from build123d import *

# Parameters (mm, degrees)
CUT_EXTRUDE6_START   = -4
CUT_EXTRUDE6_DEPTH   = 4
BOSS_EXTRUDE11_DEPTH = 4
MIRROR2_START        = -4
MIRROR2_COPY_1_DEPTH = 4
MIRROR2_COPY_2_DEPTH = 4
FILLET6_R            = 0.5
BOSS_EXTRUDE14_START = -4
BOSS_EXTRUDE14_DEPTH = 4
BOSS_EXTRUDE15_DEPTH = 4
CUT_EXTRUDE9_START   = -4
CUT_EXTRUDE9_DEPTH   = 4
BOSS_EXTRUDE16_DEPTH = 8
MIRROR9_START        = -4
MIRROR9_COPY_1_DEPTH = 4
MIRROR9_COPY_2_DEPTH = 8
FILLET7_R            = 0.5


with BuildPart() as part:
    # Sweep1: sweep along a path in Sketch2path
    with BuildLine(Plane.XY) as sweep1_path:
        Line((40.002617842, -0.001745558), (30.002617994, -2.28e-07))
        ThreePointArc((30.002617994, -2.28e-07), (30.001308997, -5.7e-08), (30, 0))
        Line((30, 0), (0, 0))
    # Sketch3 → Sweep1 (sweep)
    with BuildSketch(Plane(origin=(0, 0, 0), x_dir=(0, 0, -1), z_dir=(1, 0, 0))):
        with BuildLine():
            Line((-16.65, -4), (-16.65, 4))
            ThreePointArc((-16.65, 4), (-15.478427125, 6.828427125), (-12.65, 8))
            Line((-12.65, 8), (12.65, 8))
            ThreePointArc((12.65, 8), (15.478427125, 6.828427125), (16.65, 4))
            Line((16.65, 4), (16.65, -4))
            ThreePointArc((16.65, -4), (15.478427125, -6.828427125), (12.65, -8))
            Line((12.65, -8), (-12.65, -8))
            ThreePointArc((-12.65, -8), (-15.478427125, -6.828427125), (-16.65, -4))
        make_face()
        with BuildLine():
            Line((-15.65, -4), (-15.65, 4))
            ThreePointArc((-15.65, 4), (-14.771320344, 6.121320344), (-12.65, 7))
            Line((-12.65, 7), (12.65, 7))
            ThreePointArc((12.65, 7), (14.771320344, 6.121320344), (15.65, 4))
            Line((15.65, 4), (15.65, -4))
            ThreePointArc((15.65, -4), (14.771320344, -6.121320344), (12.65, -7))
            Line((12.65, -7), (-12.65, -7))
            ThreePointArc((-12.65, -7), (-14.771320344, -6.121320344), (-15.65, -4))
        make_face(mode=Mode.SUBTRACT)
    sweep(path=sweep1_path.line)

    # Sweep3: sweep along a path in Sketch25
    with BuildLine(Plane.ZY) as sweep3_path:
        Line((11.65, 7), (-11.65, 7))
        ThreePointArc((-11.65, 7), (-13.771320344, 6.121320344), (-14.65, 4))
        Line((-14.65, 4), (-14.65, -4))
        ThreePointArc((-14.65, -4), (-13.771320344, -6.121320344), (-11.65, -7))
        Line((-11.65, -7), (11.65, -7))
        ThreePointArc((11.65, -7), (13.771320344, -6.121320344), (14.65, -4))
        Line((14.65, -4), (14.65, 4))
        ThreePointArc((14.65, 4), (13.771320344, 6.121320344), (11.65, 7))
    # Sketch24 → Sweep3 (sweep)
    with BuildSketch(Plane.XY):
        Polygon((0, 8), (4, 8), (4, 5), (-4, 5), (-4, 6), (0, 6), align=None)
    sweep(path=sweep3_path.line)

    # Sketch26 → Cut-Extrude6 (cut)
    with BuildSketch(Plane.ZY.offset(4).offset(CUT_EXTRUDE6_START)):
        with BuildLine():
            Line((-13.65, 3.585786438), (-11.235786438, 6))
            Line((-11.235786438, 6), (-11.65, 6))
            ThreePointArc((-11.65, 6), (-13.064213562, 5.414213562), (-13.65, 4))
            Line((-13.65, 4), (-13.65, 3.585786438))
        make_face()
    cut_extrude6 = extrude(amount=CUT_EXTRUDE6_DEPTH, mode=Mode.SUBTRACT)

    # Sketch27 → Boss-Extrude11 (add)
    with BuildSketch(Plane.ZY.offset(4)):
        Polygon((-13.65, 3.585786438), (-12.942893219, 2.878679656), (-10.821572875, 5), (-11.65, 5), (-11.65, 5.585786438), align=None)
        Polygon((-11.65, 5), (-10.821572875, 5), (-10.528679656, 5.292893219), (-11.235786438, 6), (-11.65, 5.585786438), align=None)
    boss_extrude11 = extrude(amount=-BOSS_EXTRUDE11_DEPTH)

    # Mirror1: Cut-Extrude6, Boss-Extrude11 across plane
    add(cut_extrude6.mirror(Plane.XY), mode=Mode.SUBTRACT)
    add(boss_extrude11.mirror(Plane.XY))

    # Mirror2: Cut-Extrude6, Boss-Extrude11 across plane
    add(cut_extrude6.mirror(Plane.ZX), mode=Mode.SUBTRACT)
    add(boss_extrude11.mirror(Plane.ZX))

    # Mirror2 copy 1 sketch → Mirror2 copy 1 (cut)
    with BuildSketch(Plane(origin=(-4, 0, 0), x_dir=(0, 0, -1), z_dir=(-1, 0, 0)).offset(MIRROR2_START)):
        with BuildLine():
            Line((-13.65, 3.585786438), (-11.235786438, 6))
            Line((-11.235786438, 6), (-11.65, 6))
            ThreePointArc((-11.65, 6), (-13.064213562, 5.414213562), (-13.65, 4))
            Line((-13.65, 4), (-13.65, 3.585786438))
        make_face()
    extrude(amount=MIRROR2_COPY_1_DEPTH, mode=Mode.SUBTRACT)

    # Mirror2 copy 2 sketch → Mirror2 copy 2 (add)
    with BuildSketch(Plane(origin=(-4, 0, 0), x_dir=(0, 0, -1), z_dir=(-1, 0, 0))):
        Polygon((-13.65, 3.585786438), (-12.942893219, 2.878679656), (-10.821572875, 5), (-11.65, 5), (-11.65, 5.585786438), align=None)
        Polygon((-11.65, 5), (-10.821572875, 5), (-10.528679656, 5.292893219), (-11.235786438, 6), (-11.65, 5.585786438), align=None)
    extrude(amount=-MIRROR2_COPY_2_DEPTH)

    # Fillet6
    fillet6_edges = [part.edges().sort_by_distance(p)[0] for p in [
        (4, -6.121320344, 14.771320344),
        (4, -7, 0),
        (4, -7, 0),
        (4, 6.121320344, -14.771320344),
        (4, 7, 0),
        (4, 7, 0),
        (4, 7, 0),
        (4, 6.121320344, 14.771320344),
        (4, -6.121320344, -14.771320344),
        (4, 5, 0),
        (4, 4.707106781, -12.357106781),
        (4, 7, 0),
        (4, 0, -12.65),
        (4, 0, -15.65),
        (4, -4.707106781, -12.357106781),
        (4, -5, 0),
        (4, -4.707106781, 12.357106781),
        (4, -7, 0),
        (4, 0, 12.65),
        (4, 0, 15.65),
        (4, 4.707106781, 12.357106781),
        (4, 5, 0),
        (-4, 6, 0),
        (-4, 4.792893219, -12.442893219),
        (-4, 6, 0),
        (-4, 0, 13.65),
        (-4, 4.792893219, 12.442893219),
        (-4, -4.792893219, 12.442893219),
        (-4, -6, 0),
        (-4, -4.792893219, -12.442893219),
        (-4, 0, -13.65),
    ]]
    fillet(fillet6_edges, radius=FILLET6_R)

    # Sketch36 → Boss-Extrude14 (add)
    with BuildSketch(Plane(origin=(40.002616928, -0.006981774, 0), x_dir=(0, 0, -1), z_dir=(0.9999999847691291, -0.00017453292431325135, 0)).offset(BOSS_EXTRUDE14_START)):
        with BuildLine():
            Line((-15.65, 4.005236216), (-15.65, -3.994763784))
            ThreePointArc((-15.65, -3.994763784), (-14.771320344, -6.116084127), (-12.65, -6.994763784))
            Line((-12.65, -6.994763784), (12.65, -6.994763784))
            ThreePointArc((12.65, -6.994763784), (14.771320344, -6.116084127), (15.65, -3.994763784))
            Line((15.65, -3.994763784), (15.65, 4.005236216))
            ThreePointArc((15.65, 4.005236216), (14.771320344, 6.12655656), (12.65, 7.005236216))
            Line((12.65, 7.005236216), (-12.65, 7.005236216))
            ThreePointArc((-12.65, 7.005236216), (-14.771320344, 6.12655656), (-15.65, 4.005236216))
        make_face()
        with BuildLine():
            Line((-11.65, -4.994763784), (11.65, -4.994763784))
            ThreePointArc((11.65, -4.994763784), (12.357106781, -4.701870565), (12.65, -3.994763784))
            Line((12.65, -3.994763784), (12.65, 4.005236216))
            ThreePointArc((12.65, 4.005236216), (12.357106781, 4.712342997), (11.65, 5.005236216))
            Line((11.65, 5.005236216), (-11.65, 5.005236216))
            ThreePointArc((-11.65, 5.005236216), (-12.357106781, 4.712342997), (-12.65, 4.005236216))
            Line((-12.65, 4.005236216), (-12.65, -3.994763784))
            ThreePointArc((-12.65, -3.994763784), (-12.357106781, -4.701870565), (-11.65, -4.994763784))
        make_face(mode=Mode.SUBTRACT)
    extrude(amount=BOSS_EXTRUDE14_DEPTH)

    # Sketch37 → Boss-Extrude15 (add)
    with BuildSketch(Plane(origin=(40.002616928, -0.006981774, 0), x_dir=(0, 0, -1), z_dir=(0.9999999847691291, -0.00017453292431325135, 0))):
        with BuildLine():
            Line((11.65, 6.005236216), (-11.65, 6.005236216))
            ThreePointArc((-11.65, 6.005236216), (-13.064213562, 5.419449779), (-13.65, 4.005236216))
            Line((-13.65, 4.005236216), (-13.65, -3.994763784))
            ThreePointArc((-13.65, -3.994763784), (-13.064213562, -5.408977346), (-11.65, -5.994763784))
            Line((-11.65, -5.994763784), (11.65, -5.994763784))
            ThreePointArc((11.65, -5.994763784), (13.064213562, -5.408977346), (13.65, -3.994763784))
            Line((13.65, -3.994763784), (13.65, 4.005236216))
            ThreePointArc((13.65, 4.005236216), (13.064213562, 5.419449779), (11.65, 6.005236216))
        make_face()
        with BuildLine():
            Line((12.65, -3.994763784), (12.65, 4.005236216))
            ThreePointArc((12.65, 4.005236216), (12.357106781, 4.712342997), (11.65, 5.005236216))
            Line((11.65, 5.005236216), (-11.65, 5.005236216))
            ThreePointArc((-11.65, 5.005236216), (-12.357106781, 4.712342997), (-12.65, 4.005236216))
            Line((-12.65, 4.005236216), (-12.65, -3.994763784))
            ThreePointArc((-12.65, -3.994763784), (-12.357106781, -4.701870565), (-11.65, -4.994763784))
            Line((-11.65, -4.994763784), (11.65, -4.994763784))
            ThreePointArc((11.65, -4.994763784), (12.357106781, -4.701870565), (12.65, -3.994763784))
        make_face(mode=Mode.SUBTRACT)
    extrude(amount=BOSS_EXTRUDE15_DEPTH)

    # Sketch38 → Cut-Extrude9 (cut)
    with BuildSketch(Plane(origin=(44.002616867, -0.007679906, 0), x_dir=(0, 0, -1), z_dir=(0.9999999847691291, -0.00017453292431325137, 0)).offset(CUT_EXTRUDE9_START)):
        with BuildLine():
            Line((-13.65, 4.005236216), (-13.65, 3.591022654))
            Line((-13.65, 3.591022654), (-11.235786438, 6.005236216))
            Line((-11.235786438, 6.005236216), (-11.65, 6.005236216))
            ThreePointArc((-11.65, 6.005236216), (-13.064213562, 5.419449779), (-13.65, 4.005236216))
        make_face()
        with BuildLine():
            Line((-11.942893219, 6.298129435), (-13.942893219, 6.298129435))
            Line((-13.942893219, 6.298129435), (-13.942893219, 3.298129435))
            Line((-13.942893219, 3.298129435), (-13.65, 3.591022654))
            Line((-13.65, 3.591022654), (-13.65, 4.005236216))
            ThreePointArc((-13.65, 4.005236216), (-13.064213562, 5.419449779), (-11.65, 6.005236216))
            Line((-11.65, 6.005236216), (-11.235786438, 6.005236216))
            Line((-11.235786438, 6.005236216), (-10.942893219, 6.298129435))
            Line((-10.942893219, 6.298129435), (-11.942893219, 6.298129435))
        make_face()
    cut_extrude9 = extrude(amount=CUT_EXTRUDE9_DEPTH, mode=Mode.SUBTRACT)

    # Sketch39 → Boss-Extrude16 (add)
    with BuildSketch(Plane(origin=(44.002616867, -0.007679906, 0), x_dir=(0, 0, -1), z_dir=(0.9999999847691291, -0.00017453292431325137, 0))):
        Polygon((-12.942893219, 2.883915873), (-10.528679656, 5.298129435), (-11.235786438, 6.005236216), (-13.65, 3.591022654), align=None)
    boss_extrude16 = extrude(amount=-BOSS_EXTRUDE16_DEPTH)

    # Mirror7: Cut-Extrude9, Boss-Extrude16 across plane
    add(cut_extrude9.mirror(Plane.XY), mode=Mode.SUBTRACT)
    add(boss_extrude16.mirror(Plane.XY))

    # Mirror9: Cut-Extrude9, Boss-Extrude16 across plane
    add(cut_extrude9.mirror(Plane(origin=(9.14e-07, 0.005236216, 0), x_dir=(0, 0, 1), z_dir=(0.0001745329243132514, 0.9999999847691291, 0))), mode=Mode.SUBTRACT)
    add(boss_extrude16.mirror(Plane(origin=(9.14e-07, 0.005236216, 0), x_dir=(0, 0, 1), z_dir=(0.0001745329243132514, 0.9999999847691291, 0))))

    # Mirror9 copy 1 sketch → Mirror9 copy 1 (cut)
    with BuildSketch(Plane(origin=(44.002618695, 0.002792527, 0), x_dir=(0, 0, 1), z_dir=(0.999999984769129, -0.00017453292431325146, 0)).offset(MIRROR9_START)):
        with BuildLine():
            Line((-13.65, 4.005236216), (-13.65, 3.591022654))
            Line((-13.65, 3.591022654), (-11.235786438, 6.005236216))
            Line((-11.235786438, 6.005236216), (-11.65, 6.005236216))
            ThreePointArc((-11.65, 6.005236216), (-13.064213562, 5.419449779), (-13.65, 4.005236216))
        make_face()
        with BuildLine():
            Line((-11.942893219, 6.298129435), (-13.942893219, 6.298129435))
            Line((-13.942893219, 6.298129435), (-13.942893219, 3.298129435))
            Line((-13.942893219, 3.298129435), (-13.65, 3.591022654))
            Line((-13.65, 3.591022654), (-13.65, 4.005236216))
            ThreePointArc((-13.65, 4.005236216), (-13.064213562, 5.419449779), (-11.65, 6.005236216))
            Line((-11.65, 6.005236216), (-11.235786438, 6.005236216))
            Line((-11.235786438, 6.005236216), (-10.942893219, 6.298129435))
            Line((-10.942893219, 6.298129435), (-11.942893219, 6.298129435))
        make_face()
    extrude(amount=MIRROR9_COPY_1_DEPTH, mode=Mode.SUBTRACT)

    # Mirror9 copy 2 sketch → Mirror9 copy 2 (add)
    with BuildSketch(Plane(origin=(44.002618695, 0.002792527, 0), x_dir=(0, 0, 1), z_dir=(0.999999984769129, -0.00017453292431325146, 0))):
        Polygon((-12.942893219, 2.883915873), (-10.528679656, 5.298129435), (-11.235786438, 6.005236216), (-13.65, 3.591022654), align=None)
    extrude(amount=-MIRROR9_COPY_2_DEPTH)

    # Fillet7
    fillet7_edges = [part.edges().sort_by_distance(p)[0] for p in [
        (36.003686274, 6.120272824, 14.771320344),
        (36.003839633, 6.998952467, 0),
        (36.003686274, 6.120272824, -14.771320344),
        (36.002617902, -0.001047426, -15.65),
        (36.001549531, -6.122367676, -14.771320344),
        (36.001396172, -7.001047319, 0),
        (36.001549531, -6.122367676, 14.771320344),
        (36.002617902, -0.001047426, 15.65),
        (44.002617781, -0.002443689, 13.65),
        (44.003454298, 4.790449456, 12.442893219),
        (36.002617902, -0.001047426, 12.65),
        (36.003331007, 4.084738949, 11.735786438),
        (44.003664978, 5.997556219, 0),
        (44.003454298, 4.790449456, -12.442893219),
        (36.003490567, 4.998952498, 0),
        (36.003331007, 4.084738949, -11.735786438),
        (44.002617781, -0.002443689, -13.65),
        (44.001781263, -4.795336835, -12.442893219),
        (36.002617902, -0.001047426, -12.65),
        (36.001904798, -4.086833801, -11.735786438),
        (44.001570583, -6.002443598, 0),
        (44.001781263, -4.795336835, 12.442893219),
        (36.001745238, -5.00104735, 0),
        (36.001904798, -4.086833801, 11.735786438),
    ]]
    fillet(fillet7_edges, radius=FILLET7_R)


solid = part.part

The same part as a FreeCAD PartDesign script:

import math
import FreeCAD as App
import Part
import Sketcher

V = App.Vector
Q = App.Units.Quantity


def edges_at(feature, points):
    """Names of the edges that pass closest to the given points."""
    edges = feature.Shape.Edges
    near = lambda p: min(range(len(edges)), key=lambda i: edges[i].distToShape(Part.Vertex(*p))[0])
    return sorted({f"Edge{near(p) + 1}" for p in points})

doc = App.newDocument("Part")
body = doc.addObject("PartDesign::Body", "Body")

# Sketch on YZ plane
sketch1 = doc.addObject("Sketcher::SketchObject", "Sketch")
body.addObject(sketch1)
sketch1.AttachmentSupport = (doc.YZ_Plane, [""])
sketch1.MapMode = "FlatFace"
sketch1.addGeometry(Part.LineSegment(V(4, 16.6, 0), V(-4, 16.6, 0)), False)
sketch1.addGeometry(Part.ArcOfCircle(Part.Circle(V(-4, 12.7, 0), V(0, 0, 1), 4), math.radians(90), math.radians(180)), False)
sketch1.addGeometry(Part.LineSegment(V(-8, 12.7, 0), V(-8, -12.7, 0)), False)
sketch1.addGeometry(Part.ArcOfCircle(Part.Circle(V(-4, -12.7, 0), V(0, 0, 1), 4), math.radians(180), math.radians(270)), False)
sketch1.addGeometry(Part.LineSegment(V(-4, -16.6, 0), V(4, -16.6, 0)), False)
sketch1.addGeometry(Part.ArcOfCircle(Part.Circle(V(4, -12.7, 0), V(0, 0, 1), 4), math.radians(-90), math.radians(0)), False)
sketch1.addGeometry(Part.LineSegment(V(8, -12.7, 0), V(8, 12.7, 0)), False)
sketch1.addGeometry(Part.ArcOfCircle(Part.Circle(V(4, 12.7, 0), V(0, 0, 1), 4), math.radians(0), math.radians(90)), False)
sketch1.addGeometry(Part.LineSegment(V(-4, 15.7, 0), V(4, 15.7, 0)), False)
sketch1.addGeometry(Part.ArcOfCircle(Part.Circle(V(4, 12.7, 0), V(0, 0, 1), 3), math.radians(0), math.radians(90)), False)
sketch1.addGeometry(Part.LineSegment(V(7, 12.7, 0), V(7, -12.7, 0)), False)
sketch1.addGeometry(Part.ArcOfCircle(Part.Circle(V(4, -12.7, 0), V(0, 0, 1), 3), math.radians(-90), math.radians(0)), False)
sketch1.addGeometry(Part.LineSegment(V(4, -15.7, 0), V(-4, -15.7, 0)), False)
sketch1.addGeometry(Part.ArcOfCircle(Part.Circle(V(-4, -12.7, 0), V(0, 0, 1), 3), math.radians(180), math.radians(270)), False)
sketch1.addGeometry(Part.LineSegment(V(-7, -12.7, 0), V(-7, 12.7, 0)), False)
sketch1.addGeometry(Part.ArcOfCircle(Part.Circle(V(-4, 12.7, 0), V(0, 0, 1), 3), math.radians(90), math.radians(180)), False)
sketch1.addConstraint(Sketcher.Constraint("Tangent", 0, 2, 1, 1))
sketch1.addConstraint(Sketcher.Constraint("Tangent", 1, 2, 2, 1))
sketch1.addConstraint(Sketcher.Constraint("Tangent", 2, 2, 3, 1))
sketch1.addConstraint(Sketcher.Constraint("Tangent", 3, 2, 4, 1))
sketch1.addConstraint(Sketcher.Constraint("Tangent", 4, 2, 5, 1))
sketch1.addConstraint(Sketcher.Constraint("Tangent", 5, 2, 6, 1))
sketch1.addConstraint(Sketcher.Constraint("Tangent", 6, 2, 7, 1))
sketch1.addConstraint(Sketcher.Constraint("Tangent", 7, 2, 0, 1))
sketch1.addConstraint(Sketcher.Constraint("Tangent", 8, 2, 9, 2))
sketch1.addConstraint(Sketcher.Constraint("Tangent", 9, 1, 10, 1))
sketch1.addConstraint(Sketcher.Constraint("Tangent", 10, 2, 11, 2))
sketch1.addConstraint(Sketcher.Constraint("Tangent", 11, 1, 12, 1))
sketch1.addConstraint(Sketcher.Constraint("Tangent", 12, 2, 13, 2))
sketch1.addConstraint(Sketcher.Constraint("Tangent", 13, 1, 14, 1))
sketch1.addConstraint(Sketcher.Constraint("Tangent", 14, 2, 15, 2))
sketch1.addConstraint(Sketcher.Constraint("Tangent", 15, 1, 8, 1))
sketch1.addConstraint(Sketcher.Constraint("Horizontal", 0))
sketch1.addConstraint(Sketcher.Constraint("Vertical", 2))
sketch1.addConstraint(Sketcher.Constraint("Horizontal", 4))
sketch1.addConstraint(Sketcher.Constraint("Vertical", 6))
sketch1.addConstraint(Sketcher.Constraint("Horizontal", 8))
sketch1.addConstraint(Sketcher.Constraint("Vertical", 10))
sketch1.addConstraint(Sketcher.Constraint("Horizontal", 12))
sketch1.addConstraint(Sketcher.Constraint("Vertical", 14))
sketch1.addConstraint(Sketcher.Constraint("Coincident", 9, 3, 7, 3))
sketch1.addConstraint(Sketcher.Constraint("Coincident", 11, 3, 5, 3))
sketch1.addConstraint(Sketcher.Constraint("Coincident", 13, 3, 3, 3))
sketch1.addConstraint(Sketcher.Constraint("Equal", 1, 3))
sketch1.addConstraint(Sketcher.Constraint("Equal", 3, 5))
sketch1.addConstraint(Sketcher.Constraint("Equal", 5, 7))
sketch1.addConstraint(Sketcher.Constraint("Equal", 13, 15))
sketch1.addConstraint(Sketcher.Constraint("Symmetric", 1, 3, 5, 3, -1, 1))
sketch1.addConstraint(Sketcher.Constraint("Radius", 1, 4.0))
sketch1.addConstraint(Sketcher.Constraint("Radius", 9, 3.0))
sketch1.addConstraint(Sketcher.Constraint("DistanceX", 0, 2, 0, 1, 8.0))
sketch1.addConstraint(Sketcher.Constraint("DistanceY", 2, 2, 2, 1, 25.3))

# Sketch on XY plane
sketch2 = doc.addObject("Sketcher::SketchObject", "Sketch001")
body.addObject(sketch2)
sketch2.AttachmentSupport = (doc.XY_Plane, [""])
sketch2.MapMode = "FlatFace"
sketch2.addGeometry(Part.LineSegment(V(40.0026, -0.0017, 0), V(30.0026, 0, 0)), False)
sketch2.addGeometry(Part.ArcOfCircle(Part.Circle(V(30, -15.0305, 0), V(0, 0, 1), 15.0305), math.radians(89.99), math.radians(90)), False)
sketch2.addGeometry(Part.LineSegment(V(30, 0, 0), V(0, 0, 0)), False)
sketch2.addConstraint(Sketcher.Constraint("Tangent", 0, 2, 1, 1))
sketch2.addConstraint(Sketcher.Constraint("Tangent", 1, 2, 2, 1))
sketch2.addConstraint(Sketcher.Constraint("Horizontal", 2))
sketch2.addConstraint(Sketcher.Constraint("Coincident", 2, 2, -1, 1))
sketch2.addConstraint(Sketcher.Constraint("DistanceX", 2, 2, 2, 1, 30.0))
sketch2.addConstraint(Sketcher.Constraint("Distance", 0, 10.0))
sketch2.addConstraint(Sketcher.Constraint("Angle", 0, Q("179.99 deg")))
sketch2.addConstraint(Sketcher.Constraint("Radius", 1, 15.030466))
doc.recompute()

additivepipe = doc.addObject("PartDesign::AdditivePipe", "AdditivePipe")
body.addObject(additivepipe)
additivepipe.Profile = sketch1
additivepipe.Spine = (sketch2, ["Edge1", "Edge2", "Edge3"])

# Sketch on XY plane
sketch3 = doc.addObject("Sketcher::SketchObject", "Sketch002")
body.addObject(sketch3)
sketch3.AttachmentSupport = (doc.XY_Plane, [""])
sketch3.MapMode = "FlatFace"
sketch3.addGeometry(Part.LineSegment(V(4, 8, 0), V(0, 8, 0)), False)
sketch3.addGeometry(Part.LineSegment(V(0, 8, 0), V(0, 6, 0)), False)
sketch3.addGeometry(Part.LineSegment(V(0, 6, 0), V(-4, 6, 0)), False)
sketch3.addGeometry(Part.LineSegment(V(-4, 6, 0), V(-4, 5, 0)), False)
sketch3.addGeometry(Part.LineSegment(V(-4, 5, 0), V(4, 5, 0)), False)
sketch3.addGeometry(Part.LineSegment(V(4, 5, 0), V(4, 8, 0)), False)
sketch3.addConstraint(Sketcher.Constraint("Coincident", 0, 2, 1, 1))
sketch3.addConstraint(Sketcher.Constraint("Coincident", 1, 2, 2, 1))
sketch3.addConstraint(Sketcher.Constraint("Coincident", 2, 2, 3, 1))
sketch3.addConstraint(Sketcher.Constraint("Coincident", 3, 2, 4, 1))
sketch3.addConstraint(Sketcher.Constraint("Coincident", 4, 2, 5, 1))
sketch3.addConstraint(Sketcher.Constraint("Coincident", 5, 2, 0, 1))
sketch3.addConstraint(Sketcher.Constraint("Horizontal", 0))
sketch3.addConstraint(Sketcher.Constraint("Vertical", 1))
sketch3.addConstraint(Sketcher.Constraint("Horizontal", 2))
sketch3.addConstraint(Sketcher.Constraint("Vertical", 3))
sketch3.addConstraint(Sketcher.Constraint("Horizontal", 4))
sketch3.addConstraint(Sketcher.Constraint("Vertical", 5))
sketch3.addConstraint(Sketcher.Constraint("PointOnObject", 0, 2, -2))
sketch3.addConstraint(Sketcher.Constraint("Equal", 0, 2))
sketch3.addConstraint(Sketcher.Constraint("DistanceX", 0, 2, 0, 1, 4.0))
sketch3.addConstraint(Sketcher.Constraint("DistanceY", 1, 2, 1, 1, 2.0))
sketch3.addConstraint(Sketcher.Constraint("DistanceY", 3, 2, 3, 1, 1.0))
sketch3.addConstraint(Sketcher.Constraint("DistanceY", -1, 1, 0, 2, 8.0))

# Sketch on YZ plane
sketch4 = doc.addObject("Sketcher::SketchObject", "Sketch003")
body.addObject(sketch4)
sketch4.AttachmentSupport = (doc.YZ_Plane, [""])
sketch4.MapMode = "FlatFace"
sketch4.addGeometry(Part.LineSegment(V(7, 11.7, 0), V(7, -11.7, 0)), False)
sketch4.addGeometry(Part.ArcOfCircle(Part.Circle(V(4, -11.7, 0), V(0, 0, 1), 3), math.radians(-90), math.radians(0)), False)
sketch4.addGeometry(Part.LineSegment(V(4, -14.7, 0), V(-4, -14.7, 0)), False)
sketch4.addGeometry(Part.ArcOfCircle(Part.Circle(V(-4, -11.7, 0), V(0, 0, 1), 3), math.radians(180), math.radians(270)), False)
sketch4.addGeometry(Part.LineSegment(V(-7, -11.7, 0), V(-7, 11.7, 0)), False)
sketch4.addGeometry(Part.ArcOfCircle(Part.Circle(V(-4, 11.7, 0), V(0, 0, 1), 3), math.radians(90), math.radians(180)), False)
sketch4.addGeometry(Part.LineSegment(V(-4, 14.7, 0), V(4, 14.7, 0)), False)
sketch4.addGeometry(Part.ArcOfCircle(Part.Circle(V(4, 11.7, 0), V(0, 0, 1), 3), math.radians(0), math.radians(90)), False)
sketch4.addConstraint(Sketcher.Constraint("Tangent", 0, 2, 1, 2))
sketch4.addConstraint(Sketcher.Constraint("Tangent", 1, 1, 2, 1))
sketch4.addConstraint(Sketcher.Constraint("Tangent", 2, 2, 3, 2))
sketch4.addConstraint(Sketcher.Constraint("Tangent", 3, 1, 4, 1))
sketch4.addConstraint(Sketcher.Constraint("Tangent", 4, 2, 5, 2))
sketch4.addConstraint(Sketcher.Constraint("Tangent", 5, 1, 6, 1))
sketch4.addConstraint(Sketcher.Constraint("Tangent", 6, 2, 7, 2))
sketch4.addConstraint(Sketcher.Constraint("Tangent", 7, 1, 0, 1))
sketch4.addConstraint(Sketcher.Constraint("Vertical", 0))
sketch4.addConstraint(Sketcher.Constraint("Horizontal", 2))
sketch4.addConstraint(Sketcher.Constraint("Vertical", 4))
sketch4.addConstraint(Sketcher.Constraint("Horizontal", 6))
sketch4.addConstraint(Sketcher.Constraint("Equal", 1, 3))
sketch4.addConstraint(Sketcher.Constraint("Equal", 3, 5))
sketch4.addConstraint(Sketcher.Constraint("Equal", 5, 7))
sketch4.addConstraint(Sketcher.Constraint("Symmetric", 1, 3, 5, 3, -1, 1))
sketch4.addConstraint(Sketcher.Constraint("Radius", 1, 3.0))
sketch4.addConstraint(Sketcher.Constraint("DistanceX", 2, 2, 2, 1, 8.0))
sketch4.addConstraint(Sketcher.Constraint("DistanceY", 0, 2, 0, 1, 23.3))
doc.recompute()

additivepipe2 = doc.addObject("PartDesign::AdditivePipe", "AdditivePipe001")
body.addObject(additivepipe2)
additivepipe2.Profile = sketch3
additivepipe2.Spine = (sketch4, ["Edge1", "Edge2", "Edge3", "Edge4", "Edge5", "Edge6", "Edge7", "Edge8"])

# Sketch on YZ plane
sketch5 = doc.addObject("Sketcher::SketchObject", "Sketch004")
body.addObject(sketch5)
sketch5.AttachmentSupport = (doc.YZ_Plane, [""])
sketch5.MapMode = "FlatFace"
sketch5.addGeometry(Part.LineSegment(V(3.59, -13.65, 0), V(6, -11.24, 0)), False)
sketch5.addGeometry(Part.LineSegment(V(6, -11.24, 0), V(6, -11.65, 0)), False)
sketch5.addGeometry(Part.ArcOfCircle(Part.Circle(V(4, -11.65, 0), V(0, 0, 1), 2), math.radians(-90), math.radians(0)), False)
sketch5.addGeometry(Part.LineSegment(V(4, -13.65, 0), V(3.59, -13.65, 0)), False)
sketch5.addConstraint(Sketcher.Constraint("Coincident", 0, 2, 1, 1))
sketch5.addConstraint(Sketcher.Constraint("Tangent", 1, 2, 2, 2))
sketch5.addConstraint(Sketcher.Constraint("Tangent", 2, 1, 3, 1))
sketch5.addConstraint(Sketcher.Constraint("Coincident", 3, 2, 0, 1))
sketch5.addConstraint(Sketcher.Constraint("Vertical", 1))
sketch5.addConstraint(Sketcher.Constraint("Horizontal", 3))
sketch5.addConstraint(Sketcher.Constraint("Equal", 3, 1))
sketch5.addConstraint(Sketcher.Constraint("Radius", 2, 2.0))
sketch5.addConstraint(Sketcher.Constraint("DistanceX", -1, 1, 2, 3, 4.0))
sketch5.addConstraint(Sketcher.Constraint("DistanceY", 2, 3, -1, 1, 11.65))
sketch5.addConstraint(Sketcher.Constraint("DistanceX", 3, 2, 3, 1, 0.414214))
pocket1 = doc.addObject("PartDesign::Pocket", "Pocket")
body.addObject(pocket1)
pocket1.Profile = sketch5
pocket1.Length = 4

# Sketch on YZ plane
sketch6 = doc.addObject("Sketcher::SketchObject", "Sketch005")
body.addObject(sketch6)
sketch6.AttachmentSupport = (doc.YZ_Plane, [""])
sketch6.MapMode = "FlatFace"
sketch6.AttachmentOffset = App.Placement(V(0, 0, -4), App.Rotation())
sketch6.addGeometry(Part.LineSegment(V(3.6, -13.7, 0), V(2.9, -12.9, 0)), False)
sketch6.addGeometry(Part.LineSegment(V(2.9, -12.9, 0), V(5.3, -10.5, 0)), False)
sketch6.addGeometry(Part.LineSegment(V(5.3, -10.5, 0), V(6, -11.2, 0)), False)
sketch6.addGeometry(Part.LineSegment(V(6, -11.2, 0), V(3.6, -13.7, 0)), False)
sketch6.addConstraint(Sketcher.Constraint("Coincident", 0, 2, 1, 1))
sketch6.addConstraint(Sketcher.Constraint("Coincident", 1, 2, 2, 1))
sketch6.addConstraint(Sketcher.Constraint("Coincident", 2, 2, 3, 1))
sketch6.addConstraint(Sketcher.Constraint("Coincident", 3, 2, 0, 1))
sketch6.addConstraint(Sketcher.Constraint("Perpendicular", 0, 1))
sketch6.addConstraint(Sketcher.Constraint("Perpendicular", 1, 2))
sketch6.addConstraint(Sketcher.Constraint("Perpendicular", 2, 3))
sketch6.addConstraint(Sketcher.Constraint("Angle", 0, Q("135 deg")))
sketch6.addConstraint(Sketcher.Constraint("Distance", 0, 1.0))
sketch6.addConstraint(Sketcher.Constraint("DistanceX", -1, 1, 2, 2, 6.0))
sketch6.addConstraint(Sketcher.Constraint("DistanceY", 3, 2, -1, 1, 13.65))
sketch6.addConstraint(Sketcher.Constraint("DistanceX", -1, 1, 0, 2, 2.87868))
pad1 = doc.addObject("PartDesign::Pad", "Pad")
body.addObject(pad1)
pad1.Profile = sketch6
pad1.Length = 4
doc.recompute()

mirrored = doc.addObject("PartDesign::Mirrored", "Mirrored")
body.addObject(mirrored)
mirrored.Originals = [pocket1, pad1]
mirrored.MirrorPlane = (doc.XY_Plane, [""])
body.Tip = mirrored
doc.recompute()

mirrored2 = doc.addObject("PartDesign::Mirrored", "Mirrored001")
body.addObject(mirrored2)
mirrored2.Originals = [pocket1, pad1]
mirrored2.MirrorPlane = (doc.XZ_Plane, [""])
body.Tip = mirrored2

# Sketch on YZ plane
sketch7 = doc.addObject("Sketcher::SketchObject", "Sketch006")
body.addObject(sketch7)
sketch7.AttachmentSupport = (doc.YZ_Plane, [""])
sketch7.MapMode = "FlatFace"
sketch7.addGeometry(Part.LineSegment(V(-3.59, 13.65, 0), V(-6, 11.24, 0)), False)
sketch7.addGeometry(Part.LineSegment(V(-6, 11.24, 0), V(-6, 11.65, 0)), False)
sketch7.addGeometry(Part.ArcOfCircle(Part.Circle(V(-4, 11.65, 0), V(0, 0, 1), 2), math.radians(90), math.radians(180)), False)
sketch7.addGeometry(Part.LineSegment(V(-4, 13.65, 0), V(-3.59, 13.65, 0)), False)
sketch7.addConstraint(Sketcher.Constraint("Coincident", 0, 2, 1, 1))
sketch7.addConstraint(Sketcher.Constraint("Tangent", 1, 2, 2, 2))
sketch7.addConstraint(Sketcher.Constraint("Tangent", 2, 1, 3, 1))
sketch7.addConstraint(Sketcher.Constraint("Coincident", 3, 2, 0, 1))
sketch7.addConstraint(Sketcher.Constraint("Vertical", 1))
sketch7.addConstraint(Sketcher.Constraint("Horizontal", 3))
sketch7.addConstraint(Sketcher.Constraint("Equal", 3, 1))
sketch7.addConstraint(Sketcher.Constraint("Radius", 2, 2.0))
sketch7.addConstraint(Sketcher.Constraint("DistanceX", 2, 3, -1, 1, 4.0))
sketch7.addConstraint(Sketcher.Constraint("DistanceY", -1, 1, 2, 3, 11.65))
sketch7.addConstraint(Sketcher.Constraint("DistanceX", 3, 1, 3, 2, 0.414214))
pocket2 = doc.addObject("PartDesign::Pocket", "Pocket001")
body.addObject(pocket2)
pocket2.Profile = sketch7
pocket2.Length = 4

# Sketch on YZ plane
sketch8 = doc.addObject("Sketcher::SketchObject", "Sketch007")
body.addObject(sketch8)
sketch8.AttachmentSupport = (doc.YZ_Plane, [""])
sketch8.MapMode = "FlatFace"
sketch8.AttachmentOffset = App.Placement(V(0, 0, -4), App.Rotation())
sketch8.addGeometry(Part.LineSegment(V(-3.6, 13.7, 0), V(-2.9, 12.9, 0)), False)
sketch8.addGeometry(Part.LineSegment(V(-2.9, 12.9, 0), V(-5.3, 10.5, 0)), False)
sketch8.addGeometry(Part.LineSegment(V(-5.3, 10.5, 0), V(-6, 11.2, 0)), False)
sketch8.addGeometry(Part.LineSegment(V(-6, 11.2, 0), V(-3.6, 13.7, 0)), False)
sketch8.addConstraint(Sketcher.Constraint("Coincident", 0, 2, 1, 1))
sketch8.addConstraint(Sketcher.Constraint("Coincident", 1, 2, 2, 1))
sketch8.addConstraint(Sketcher.Constraint("Coincident", 2, 2, 3, 1))
sketch8.addConstraint(Sketcher.Constraint("Coincident", 3, 2, 0, 1))
sketch8.addConstraint(Sketcher.Constraint("Perpendicular", 0, 1))
sketch8.addConstraint(Sketcher.Constraint("Perpendicular", 1, 2))
sketch8.addConstraint(Sketcher.Constraint("Perpendicular", 2, 3))
sketch8.addConstraint(Sketcher.Constraint("Angle", 0, Q("-45 deg")))
sketch8.addConstraint(Sketcher.Constraint("Distance", 0, 1.0))
sketch8.addConstraint(Sketcher.Constraint("DistanceX", 2, 2, -1, 1, 6.0))
sketch8.addConstraint(Sketcher.Constraint("DistanceY", -1, 1, 3, 2, 13.65))
sketch8.addConstraint(Sketcher.Constraint("DistanceX", 0, 2, -1, 1, 2.87868))
pad2 = doc.addObject("PartDesign::Pad", "Pad001")
body.addObject(pad2)
pad2.Profile = sketch8
pad2.Length = 4
doc.recompute()

fillet = doc.addObject("PartDesign::Fillet", "Fillet")
body.addObject(fillet)
fillet.Base = (pad2, edges_at(pad2, [
    (4, -6.121, 14.771),
    (4, -7, 0),
    (4, -7, 0),
    (4, 6.121, -14.771),
    (4, 7, 0),
    (4, 7, 0),
    (4, 7, 0),
    (4, 6.121, 14.771),
    (4, -6.121, -14.771),
    (4, 5, 0),
    (4, 4.707, -12.357),
    (4, 7, 0),
    (4, 0, -12.65),
    (4, 0, -15.65),
    (4, -4.707, -12.357),
    (4, -5, 0),
    (4, -4.707, 12.357),
    (4, -7, 0),
    (4, 0, 12.65),
    (4, 0, 15.65),
    (4, 4.707, 12.357),
    (4, 5, 0),
    (-4, 6, 0),
    (-4, 4.793, -12.443),
    (-4, 6, 0),
    (-4, 0, 13.65),
    (-4, 4.793, 12.443),
    (-4, -4.793, 12.443),
    (-4, -6, 0),
    (-4, -4.793, -12.443),
    (-4, 0, -13.65),
]))
fillet.Radius = 0.5

# Sketch on an angled plane
sketch9 = doc.addObject("Sketcher::SketchObject", "Sketch008")
body.addObject(sketch9)
sketch9.Placement = App.Placement(V(36.002617, -0.006284, 0), App.Rotation(V(0, 0, -1), V(0.000174533, 0.999999985, 0), V(0.999999985, -0.000174533, 0), "ZXY"))
sketch9.addGeometry(Part.LineSegment(V(-15.7, 4, 0), V(-15.7, -4, 0)), False)
sketch9.addGeometry(Part.ArcOfCircle(Part.Circle(V(-12.7, -4, 0), V(0, 0, 1), 3), math.radians(180), math.radians(270)), False)
sketch9.addGeometry(Part.LineSegment(V(-12.7, -7, 0), V(12.7, -7, 0)), False)
sketch9.addGeometry(Part.ArcOfCircle(Part.Circle(V(12.7, -4, 0), V(0, 0, 1), 3), math.radians(-90), math.radians(0)), False)
sketch9.addGeometry(Part.LineSegment(V(15.7, -4, 0), V(15.7, 4, 0)), False)
sketch9.addGeometry(Part.ArcOfCircle(Part.Circle(V(12.7, 4, 0), V(0, 0, 1), 3), math.radians(0), math.radians(90)), False)
sketch9.addGeometry(Part.LineSegment(V(12.7, 7, 0), V(-12.7, 7, 0)), False)
sketch9.addGeometry(Part.ArcOfCircle(Part.Circle(V(-12.7, 4, 0), V(0, 0, 1), 3), math.radians(90), math.radians(180)), False)
sketch9.addGeometry(Part.LineSegment(V(11.7, -5, 0), V(-11.7, -5, 0)), False)
sketch9.addGeometry(Part.ArcOfCircle(Part.Circle(V(-11.6, -4, 0), V(0, 0, 1), 1), math.radians(-180), math.radians(-90)), False)
sketch9.addGeometry(Part.LineSegment(V(-12.7, -4, 0), V(-12.7, 4, 0)), False)
sketch9.addGeometry(Part.ArcOfCircle(Part.Circle(V(-11.6, 4, 0), V(0, 0, 1), 1), math.radians(90), math.radians(180)), False)
sketch9.addGeometry(Part.LineSegment(V(-11.7, 5, 0), V(11.7, 5, 0)), False)
sketch9.addGeometry(Part.ArcOfCircle(Part.Circle(V(11.6, 4, 0), V(0, 0, 1), 1), math.radians(0), math.radians(90)), False)
sketch9.addGeometry(Part.LineSegment(V(12.7, 4, 0), V(12.7, -4, 0)), False)
sketch9.addGeometry(Part.ArcOfCircle(Part.Circle(V(11.6, -4, 0), V(0, 0, 1), 1), math.radians(-90), math.radians(0)), False)
sketch9.addConstraint(Sketcher.Constraint("Tangent", 0, 2, 1, 1))
sketch9.addConstraint(Sketcher.Constraint("Tangent", 1, 2, 2, 1))
sketch9.addConstraint(Sketcher.Constraint("Tangent", 2, 2, 3, 1))
sketch9.addConstraint(Sketcher.Constraint("Tangent", 3, 2, 4, 1))
sketch9.addConstraint(Sketcher.Constraint("Tangent", 4, 2, 5, 1))
sketch9.addConstraint(Sketcher.Constraint("Tangent", 5, 2, 6, 1))
sketch9.addConstraint(Sketcher.Constraint("Tangent", 6, 2, 7, 1))
sketch9.addConstraint(Sketcher.Constraint("Tangent", 7, 2, 0, 1))
sketch9.addConstraint(Sketcher.Constraint("Tangent", 8, 2, 9, 2))
sketch9.addConstraint(Sketcher.Constraint("Tangent", 9, 1, 10, 1))
sketch9.addConstraint(Sketcher.Constraint("Tangent", 10, 2, 11, 2))
sketch9.addConstraint(Sketcher.Constraint("Tangent", 11, 1, 12, 1))
sketch9.addConstraint(Sketcher.Constraint("Tangent", 12, 2, 13, 2))
sketch9.addConstraint(Sketcher.Constraint("Tangent", 13, 1, 14, 1))
sketch9.addConstraint(Sketcher.Constraint("Tangent", 14, 2, 15, 2))
sketch9.addConstraint(Sketcher.Constraint("Tangent", 15, 1, 8, 1))
sketch9.addConstraint(Sketcher.Constraint("Vertical", 0))
sketch9.addConstraint(Sketcher.Constraint("Horizontal", 2))
sketch9.addConstraint(Sketcher.Constraint("Vertical", 4))
sketch9.addConstraint(Sketcher.Constraint("Horizontal", 6))
sketch9.addConstraint(Sketcher.Constraint("Horizontal", 8))
sketch9.addConstraint(Sketcher.Constraint("Vertical", 10))
sketch9.addConstraint(Sketcher.Constraint("Horizontal", 12))
sketch9.addConstraint(Sketcher.Constraint("Vertical", 14))
sketch9.addConstraint(Sketcher.Constraint("Coincident", 9, 1, 1, 3))
sketch9.addConstraint(Sketcher.Constraint("Coincident", 10, 2, 7, 3))
sketch9.addConstraint(Sketcher.Constraint("Coincident", 13, 1, 5, 3))
sketch9.addConstraint(Sketcher.Constraint("Coincident", 14, 2, 3, 3))
sketch9.addConstraint(Sketcher.Constraint("Equal", 1, 3))
sketch9.addConstraint(Sketcher.Constraint("Equal", 9, 11))
sketch9.addConstraint(Sketcher.Constraint("Radius", 1, 3.0))
sketch9.addConstraint(Sketcher.Constraint("Radius", 9, 1.0))
sketch9.addConstraint(Sketcher.Constraint("DistanceY", 0, 2, 0, 1, 8.0))
sketch9.addConstraint(Sketcher.Constraint("DistanceX", 2, 1, 2, 2, 25.3))
sketch9.addConstraint(Sketcher.Constraint("DistanceX", 1, 3, -1, 1, 12.65))
sketch9.addConstraint(Sketcher.Constraint("DistanceY", 1, 3, -1, 1, 3.994764))
pad3 = doc.addObject("PartDesign::Pad", "Pad002")
body.addObject(pad3)
pad3.Profile = sketch9
pad3.Length = 4

# Sketch on an angled plane
sketch10 = doc.addObject("Sketcher::SketchObject", "Sketch009")
body.addObject(sketch10)
sketch10.Placement = App.Placement(V(40.002617, -0.006982, 0), App.Rotation(V(0, 0, -1), V(0.000174533, 0.999999985, 0), V(0.999999985, -0.000174533, 0), "ZXY"))
sketch10.addGeometry(Part.LineSegment(V(11.7, 6, 0), V(-11.7, 6, 0)), False)
sketch10.addGeometry(Part.ArcOfCircle(Part.Circle(V(-11.7, 4, 0), V(0, 0, 1), 2), math.radians(90), math.radians(180)), False)
sketch10.addGeometry(Part.LineSegment(V(-13.7, 4, 0), V(-13.7, -4, 0)), False)
sketch10.addGeometry(Part.ArcOfCircle(Part.Circle(V(-11.6, -4, 0), V(0, 0, 1), 2), math.radians(-180), math.radians(-90)), False)
sketch10.addGeometry(Part.LineSegment(V(-11.7, -6, 0), V(11.7, -6, 0)), False)
sketch10.addGeometry(Part.ArcOfCircle(Part.Circle(V(11.6, -4, 0), V(0, 0, 1), 2), math.radians(-90), math.radians(0)), False)
sketch10.addGeometry(Part.LineSegment(V(13.7, -4, 0), V(13.7, 4, 0)), False)
sketch10.addGeometry(Part.ArcOfCircle(Part.Circle(V(11.7, 4, 0), V(0, 0, 1), 2), math.radians(0), math.radians(90)), False)
sketch10.addGeometry(Part.LineSegment(V(12.7, 4, 0), V(12.7, -4, 0)), False)
sketch10.addGeometry(Part.ArcOfCircle(Part.Circle(V(11.6, -4, 0), V(0, 0, 1), 1), math.radians(-90), math.radians(0)), False)
sketch10.addGeometry(Part.LineSegment(V(11.7, -5, 0), V(-11.7, -5, 0)), False)
sketch10.addGeometry(Part.ArcOfCircle(Part.Circle(V(-11.6, -4, 0), V(0, 0, 1), 1), math.radians(-180), math.radians(-90)), False)
sketch10.addGeometry(Part.LineSegment(V(-12.7, -4, 0), V(-12.7, 4, 0)), False)
sketch10.addGeometry(Part.ArcOfCircle(Part.Circle(V(-11.6, 4, 0), V(0, 0, 1), 1), math.radians(90), math.radians(180)), False)
sketch10.addGeometry(Part.LineSegment(V(-11.7, 5, 0), V(11.7, 5, 0)), False)
sketch10.addGeometry(Part.ArcOfCircle(Part.Circle(V(11.6, 4, 0), V(0, 0, 1), 1), math.radians(0), math.radians(90)), False)
sketch10.addConstraint(Sketcher.Constraint("Tangent", 0, 2, 1, 1))
sketch10.addConstraint(Sketcher.Constraint("Tangent", 1, 2, 2, 1))
sketch10.addConstraint(Sketcher.Constraint("Tangent", 2, 2, 3, 1))
sketch10.addConstraint(Sketcher.Constraint("Tangent", 3, 2, 4, 1))
sketch10.addConstraint(Sketcher.Constraint("Tangent", 4, 2, 5, 1))
sketch10.addConstraint(Sketcher.Constraint("Tangent", 5, 2, 6, 1))
sketch10.addConstraint(Sketcher.Constraint("Tangent", 6, 2, 7, 1))
sketch10.addConstraint(Sketcher.Constraint("Tangent", 7, 2, 0, 1))
sketch10.addConstraint(Sketcher.Constraint("Tangent", 8, 2, 9, 2))
sketch10.addConstraint(Sketcher.Constraint("Tangent", 9, 1, 10, 1))
sketch10.addConstraint(Sketcher.Constraint("Tangent", 10, 2, 11, 2))
sketch10.addConstraint(Sketcher.Constraint("Tangent", 11, 1, 12, 1))
sketch10.addConstraint(Sketcher.Constraint("Tangent", 12, 2, 13, 2))
sketch10.addConstraint(Sketcher.Constraint("Tangent", 13, 1, 14, 1))
sketch10.addConstraint(Sketcher.Constraint("Tangent", 14, 2, 15, 2))
sketch10.addConstraint(Sketcher.Constraint("Tangent", 15, 1, 8, 1))
sketch10.addConstraint(Sketcher.Constraint("Horizontal", 0))
sketch10.addConstraint(Sketcher.Constraint("Vertical", 2))
sketch10.addConstraint(Sketcher.Constraint("Horizontal", 4))
sketch10.addConstraint(Sketcher.Constraint("Vertical", 6))
sketch10.addConstraint(Sketcher.Constraint("Vertical", 8))
sketch10.addConstraint(Sketcher.Constraint("Horizontal", 10))
sketch10.addConstraint(Sketcher.Constraint("Vertical", 12))
sketch10.addConstraint(Sketcher.Constraint("Horizontal", 14))
sketch10.addConstraint(Sketcher.Constraint("Coincident", 9, 3, 5, 3))
sketch10.addConstraint(Sketcher.Constraint("Coincident", 11, 3, 3, 3))
sketch10.addConstraint(Sketcher.Constraint("Coincident", 13, 3, 1, 3))
sketch10.addConstraint(Sketcher.Constraint("Equal", 1, 3))
sketch10.addConstraint(Sketcher.Constraint("Equal", 3, 5))
sketch10.addConstraint(Sketcher.Constraint("Equal", 5, 7))
sketch10.addConstraint(Sketcher.Constraint("Equal", 13, 15))
sketch10.addConstraint(Sketcher.Constraint("Radius", 1, 2.0))
sketch10.addConstraint(Sketcher.Constraint("Radius", 9, 1.0))
sketch10.addConstraint(Sketcher.Constraint("DistanceY", 2, 2, 2, 1, 8.0))
sketch10.addConstraint(Sketcher.Constraint("DistanceX", 0, 2, 0, 1, 23.3))
sketch10.addConstraint(Sketcher.Constraint("DistanceX", 1, 3, -1, 1, 11.65))
sketch10.addConstraint(Sketcher.Constraint("DistanceY", -1, 1, 1, 3, 4.005236))
pad4 = doc.addObject("PartDesign::Pad", "Pad003")
body.addObject(pad4)
pad4.Profile = sketch10
pad4.Length = 4

# Sketch on an angled plane
sketch11 = doc.addObject("Sketcher::SketchObject", "Sketch010")
body.addObject(sketch11)
sketch11.Placement = App.Placement(V(40.002617, -0.006982, 0), App.Rotation(V(0, 0, -1), V(0.000174533, 0.999999985, 0), V(0.999999985, -0.000174533, 0), "ZXY"))
sketch11.addGeometry(Part.LineSegment(V(-10.9, 6.3, 0), V(-13.9, 6.3, 0)), False)
sketch11.addGeometry(Part.LineSegment(V(-13.9, 6.3, 0), V(-13.9, 3.3, 0)), False)
sketch11.addGeometry(Part.LineSegment(V(-13.9, 3.3, 0), V(-10.9, 6.3, 0)), False)
sketch11.addConstraint(Sketcher.Constraint("Coincident", 0, 2, 1, 1))
sketch11.addConstraint(Sketcher.Constraint("Coincident", 1, 2, 2, 1))
sketch11.addConstraint(Sketcher.Constraint("Coincident", 2, 2, 0, 1))
sketch11.addConstraint(Sketcher.Constraint("Horizontal", 0))
sketch11.addConstraint(Sketcher.Constraint("Vertical", 1))
sketch11.addConstraint(Sketcher.Constraint("Equal", 0, 1))
sketch11.addConstraint(Sketcher.Constraint("DistanceX", 0, 2, 0, 1, 3.0))
sketch11.addConstraint(Sketcher.Constraint("DistanceY", -1, 1, 0, 2, 6.298129))
sketch11.addConstraint(Sketcher.Constraint("DistanceX", 0, 2, -1, 1, 13.942893))
pocket3 = doc.addObject("PartDesign::Pocket", "Pocket002")
body.addObject(pocket3)
pocket3.Profile = sketch11
pocket3.Length = 4
pocket3.Reversed = True

# Sketch on an angled plane
sketch12 = doc.addObject("Sketcher::SketchObject", "Sketch011")
body.addObject(sketch12)
sketch12.Placement = App.Placement(V(44.002617, -0.00768, 0), App.Rotation(V(0, 0, -1), V(0.000174533, 0.999999985, 0), V(0.999999985, -0.000174533, 0), "ZXY"))
sketch12.addGeometry(Part.LineSegment(V(-12.9, 2.9, 0), V(-10.5, 5.3, 0)), False)
sketch12.addGeometry(Part.LineSegment(V(-10.5, 5.3, 0), V(-11.2, 6, 0)), False)
sketch12.addGeometry(Part.LineSegment(V(-11.2, 6, 0), V(-13.7, 3.6, 0)), False)
sketch12.addGeometry(Part.LineSegment(V(-13.7, 3.6, 0), V(-12.9, 2.9, 0)), False)
sketch12.addConstraint(Sketcher.Constraint("Coincident", 0, 2, 1, 1))
sketch12.addConstraint(Sketcher.Constraint("Coincident", 1, 2, 2, 1))
sketch12.addConstraint(Sketcher.Constraint("Coincident", 2, 2, 3, 1))
sketch12.addConstraint(Sketcher.Constraint("Coincident", 3, 2, 0, 1))
sketch12.addConstraint(Sketcher.Constraint("Perpendicular", 0, 1))
sketch12.addConstraint(Sketcher.Constraint("Perpendicular", 1, 2))
sketch12.addConstraint(Sketcher.Constraint("Perpendicular", 2, 3))
sketch12.addConstraint(Sketcher.Constraint("Angle", 0, Q("45 deg")))
sketch12.addConstraint(Sketcher.Constraint("Distance", 1, 1.0))
sketch12.addConstraint(Sketcher.Constraint("DistanceX", 2, 2, -1, 1, 13.65))
sketch12.addConstraint(Sketcher.Constraint("DistanceX", 0, 2, -1, 1, 10.52868))
sketch12.addConstraint(Sketcher.Constraint("DistanceY", -1, 1, 0, 2, 5.298129))
pad5 = doc.addObject("PartDesign::Pad", "Pad004")
body.addObject(pad5)
pad5.Profile = sketch12
pad5.Length = 8
pad5.Reversed = True
doc.recompute()

mirrored3 = doc.addObject("PartDesign::Mirrored", "Mirrored002")
body.addObject(mirrored3)
mirrored3.Originals = [pocket3, pad5]
mirrored3.MirrorPlane = (doc.XY_Plane, [""])
body.Tip = mirrored3
doc.recompute()

datumplane = doc.addObject("PartDesign::Plane", "DatumPlane")
body.addObject(datumplane)
datumplane.Placement = App.Placement(V(0.000001, 0.005236, 0), App.Rotation(V(0.999999985, -0.000174533, 0), V(0, 0, -1), V(0.000174533, 0.999999985, 0), "ZXY"))
mirrored4 = doc.addObject("PartDesign::Mirrored", "Mirrored003")
body.addObject(mirrored4)
mirrored4.Originals = [pocket3, pad5]
mirrored4.MirrorPlane = (datumplane, [""])
body.Tip = mirrored4

# Sketch on an angled plane
sketch13 = doc.addObject("Sketcher::SketchObject", "Sketch012")
body.addObject(sketch13)
sketch13.Placement = App.Placement(V(40.002619, 0.003491, 0), App.Rotation(V(0, 0, 1), V(-0.000174533, -0.999999985, 0), V(0.999999985, -0.000174533, 0), "ZXY"))
sketch13.addGeometry(Part.LineSegment(V(-10.9, 6.3, 0), V(-13.9, 6.3, 0)), False)
sketch13.addGeometry(Part.LineSegment(V(-13.9, 6.3, 0), V(-13.9, 3.3, 0)), False)
sketch13.addGeometry(Part.LineSegment(V(-13.9, 3.3, 0), V(-10.9, 6.3, 0)), False)
sketch13.addConstraint(Sketcher.Constraint("Coincident", 0, 2, 1, 1))
sketch13.addConstraint(Sketcher.Constraint("Coincident", 1, 2, 2, 1))
sketch13.addConstraint(Sketcher.Constraint("Coincident", 2, 2, 0, 1))
sketch13.addConstraint(Sketcher.Constraint("Horizontal", 0))
sketch13.addConstraint(Sketcher.Constraint("Vertical", 1))
sketch13.addConstraint(Sketcher.Constraint("Equal", 0, 1))
sketch13.addConstraint(Sketcher.Constraint("DistanceX", 0, 2, 0, 1, 3.0))
sketch13.addConstraint(Sketcher.Constraint("DistanceY", -1, 1, 0, 2, 6.298129))
sketch13.addConstraint(Sketcher.Constraint("DistanceX", 0, 2, -1, 1, 13.942893))
pocket4 = doc.addObject("PartDesign::Pocket", "Pocket003")
body.addObject(pocket4)
pocket4.Profile = sketch13
pocket4.Length = 4
pocket4.Reversed = True

# Sketch on an angled plane
sketch14 = doc.addObject("Sketcher::SketchObject", "Sketch013")
body.addObject(sketch14)
sketch14.Placement = App.Placement(V(44.002619, 0.002793, 0), App.Rotation(V(0, 0, 1), V(-0.000174533, -0.999999985, 0), V(0.999999985, -0.000174533, 0), "ZXY"))
sketch14.addGeometry(Part.LineSegment(V(-12.9, 2.9, 0), V(-10.5, 5.3, 0)), False)
sketch14.addGeometry(Part.LineSegment(V(-10.5, 5.3, 0), V(-11.2, 6, 0)), False)
sketch14.addGeometry(Part.LineSegment(V(-11.2, 6, 0), V(-13.7, 3.6, 0)), False)
sketch14.addGeometry(Part.LineSegment(V(-13.7, 3.6, 0), V(-12.9, 2.9, 0)), False)
sketch14.addConstraint(Sketcher.Constraint("Coincident", 0, 2, 1, 1))
sketch14.addConstraint(Sketcher.Constraint("Coincident", 1, 2, 2, 1))
sketch14.addConstraint(Sketcher.Constraint("Coincident", 2, 2, 3, 1))
sketch14.addConstraint(Sketcher.Constraint("Coincident", 3, 2, 0, 1))
sketch14.addConstraint(Sketcher.Constraint("Perpendicular", 0, 1))
sketch14.addConstraint(Sketcher.Constraint("Perpendicular", 1, 2))
sketch14.addConstraint(Sketcher.Constraint("Perpendicular", 2, 3))
sketch14.addConstraint(Sketcher.Constraint("Angle", 0, Q("45 deg")))
sketch14.addConstraint(Sketcher.Constraint("Distance", 1, 1.0))
sketch14.addConstraint(Sketcher.Constraint("DistanceX", 2, 2, -1, 1, 13.65))
sketch14.addConstraint(Sketcher.Constraint("DistanceX", 0, 2, -1, 1, 10.52868))
sketch14.addConstraint(Sketcher.Constraint("DistanceY", -1, 1, 0, 2, 5.298129))
pad6 = doc.addObject("PartDesign::Pad", "Pad005")
body.addObject(pad6)
pad6.Profile = sketch14
pad6.Length = 8
pad6.Reversed = True
doc.recompute()

fillet2 = doc.addObject("PartDesign::Fillet", "Fillet001")
body.addObject(fillet2)
fillet2.Base = (pad6, edges_at(pad6, [
    (36.004, 6.12, 14.771),
    (36.004, 6.999, 0),
    (36.004, 6.12, -14.771),
    (36.003, -0.001, -15.65),
    (36.002, -6.122, -14.771),
    (36.001, -7.001, 0),
    (36.002, -6.122, 14.771),
    (36.003, -0.001, 15.65),
    (44.003, -0.002, 13.65),
    (44.003, 4.79, 12.443),
    (36.003, -0.001, 12.65),
    (36.003, 4.085, 11.736),
    (44.004, 5.998, 0),
    (44.003, 4.79, -12.443),
    (36.003, 4.999, 0),
    (36.003, 4.085, -11.736),
    (44.003, -0.002, -13.65),
    (44.002, -4.795, -12.443),
    (36.003, -0.001, -12.65),
    (36.002, -4.087, -11.736),
    (44.002, -6.002, 0),
    (44.002, -4.795, 12.443),
    (36.002, -5.001, 0),
    (36.002, -4.087, 11.736),
]))
fillet2.Radius = 0.5

doc.recompute()
